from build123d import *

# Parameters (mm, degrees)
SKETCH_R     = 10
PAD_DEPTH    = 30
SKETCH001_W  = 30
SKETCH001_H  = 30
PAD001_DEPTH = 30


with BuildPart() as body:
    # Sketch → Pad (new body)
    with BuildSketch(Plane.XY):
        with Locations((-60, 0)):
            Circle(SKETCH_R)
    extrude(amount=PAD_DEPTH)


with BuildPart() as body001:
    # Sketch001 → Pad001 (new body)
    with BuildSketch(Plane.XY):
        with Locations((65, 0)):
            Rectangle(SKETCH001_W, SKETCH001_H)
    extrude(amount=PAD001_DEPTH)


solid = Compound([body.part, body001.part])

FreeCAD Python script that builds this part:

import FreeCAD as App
import Part
import Sketcher
from FreeCAD import Vector
Q = App.Units.Quantity


def add_polygon(sketch, points):
    """Adds a closed chain of lines whose ends are joined by coincident constraints."""
    first, n = sketch.GeometryCount, len(points)
    for a, b in zip(points, points[1:] + points[:1]):
        sketch.addGeometry(Part.LineSegment(App.Vector(*a, 0), App.Vector(*b, 0)), False)
    for i in range(n):
        sketch.addConstraint(Sketcher.Constraint("Coincident", first + i, 2, first + (i + 1) % n, 1))

doc = App.newDocument("Part")
body = doc.addObject("PartDesign::Body", "Body")

sketch1 = body.newObject("Sketcher::SketchObject", "Sketch")
sketch1.AttachmentSupport = (doc.getObject("XY_Plane"), [""])
sketch1.MapMode = "FlatFace"
sketch1.addGeometry(Part.Circle(Vector(-60, 0, 0), Vector(0, 0, 1), 10), False)
sketch1.addConstraint(Sketcher.Constraint("PointOnObject", 0, 3, -1))
sketch1.addConstraint(Sketcher.Constraint("Diameter", 0, Q("20 mm")))
sketch1.addConstraint(Sketcher.Constraint("DistanceX", 0, 3, -1, 1, Q("60 mm")))
pad1 = body.newObject("PartDesign::Pad", "Pad")
pad1.Profile = sketch1
pad1.Length = 30
body2 = doc.addObject("PartDesign::Body", "Body001")

sketch2 = body2.newObject("Sketcher::SketchObject", "Sketch001")
sketch2.AttachmentSupport = (doc.getObject("XY_Plane001"), [""])
sketch2.MapMode = "FlatFace"
add_polygon(sketch2, [(50, 15), (50, -15), (80, -15), (80, 15)])
sketch2.addConstraint(Sketcher.Constraint("Vertical", 0))
sketch2.addConstraint(Sketcher.Constraint("Horizontal", 1))
sketch2.addConstraint(Sketcher.Constraint("Vertical", 2))
sketch2.addConstraint(Sketcher.Constraint("Horizontal", 3))
sketch2.addConstraint(Sketcher.Constraint("Equal", 3, 0))
sketch2.addConstraint(Sketcher.Constraint("DistanceX", 1, 1, 1, 2, Q("30 mm")))
sketch2.addConstraint(Sketcher.Constraint("DistanceX", -1, 1, 0, 2, Q("50 mm")))
sketch2.addConstraint(Sketcher.Constraint("DistanceY", 0, 2, -1, 1, Q("15 mm")))
pad2 = body2.newObject("PartDesign::Pad", "Pad001")
pad2.Profile = sketch2
pad2.Length = 30

doc.recompute()
